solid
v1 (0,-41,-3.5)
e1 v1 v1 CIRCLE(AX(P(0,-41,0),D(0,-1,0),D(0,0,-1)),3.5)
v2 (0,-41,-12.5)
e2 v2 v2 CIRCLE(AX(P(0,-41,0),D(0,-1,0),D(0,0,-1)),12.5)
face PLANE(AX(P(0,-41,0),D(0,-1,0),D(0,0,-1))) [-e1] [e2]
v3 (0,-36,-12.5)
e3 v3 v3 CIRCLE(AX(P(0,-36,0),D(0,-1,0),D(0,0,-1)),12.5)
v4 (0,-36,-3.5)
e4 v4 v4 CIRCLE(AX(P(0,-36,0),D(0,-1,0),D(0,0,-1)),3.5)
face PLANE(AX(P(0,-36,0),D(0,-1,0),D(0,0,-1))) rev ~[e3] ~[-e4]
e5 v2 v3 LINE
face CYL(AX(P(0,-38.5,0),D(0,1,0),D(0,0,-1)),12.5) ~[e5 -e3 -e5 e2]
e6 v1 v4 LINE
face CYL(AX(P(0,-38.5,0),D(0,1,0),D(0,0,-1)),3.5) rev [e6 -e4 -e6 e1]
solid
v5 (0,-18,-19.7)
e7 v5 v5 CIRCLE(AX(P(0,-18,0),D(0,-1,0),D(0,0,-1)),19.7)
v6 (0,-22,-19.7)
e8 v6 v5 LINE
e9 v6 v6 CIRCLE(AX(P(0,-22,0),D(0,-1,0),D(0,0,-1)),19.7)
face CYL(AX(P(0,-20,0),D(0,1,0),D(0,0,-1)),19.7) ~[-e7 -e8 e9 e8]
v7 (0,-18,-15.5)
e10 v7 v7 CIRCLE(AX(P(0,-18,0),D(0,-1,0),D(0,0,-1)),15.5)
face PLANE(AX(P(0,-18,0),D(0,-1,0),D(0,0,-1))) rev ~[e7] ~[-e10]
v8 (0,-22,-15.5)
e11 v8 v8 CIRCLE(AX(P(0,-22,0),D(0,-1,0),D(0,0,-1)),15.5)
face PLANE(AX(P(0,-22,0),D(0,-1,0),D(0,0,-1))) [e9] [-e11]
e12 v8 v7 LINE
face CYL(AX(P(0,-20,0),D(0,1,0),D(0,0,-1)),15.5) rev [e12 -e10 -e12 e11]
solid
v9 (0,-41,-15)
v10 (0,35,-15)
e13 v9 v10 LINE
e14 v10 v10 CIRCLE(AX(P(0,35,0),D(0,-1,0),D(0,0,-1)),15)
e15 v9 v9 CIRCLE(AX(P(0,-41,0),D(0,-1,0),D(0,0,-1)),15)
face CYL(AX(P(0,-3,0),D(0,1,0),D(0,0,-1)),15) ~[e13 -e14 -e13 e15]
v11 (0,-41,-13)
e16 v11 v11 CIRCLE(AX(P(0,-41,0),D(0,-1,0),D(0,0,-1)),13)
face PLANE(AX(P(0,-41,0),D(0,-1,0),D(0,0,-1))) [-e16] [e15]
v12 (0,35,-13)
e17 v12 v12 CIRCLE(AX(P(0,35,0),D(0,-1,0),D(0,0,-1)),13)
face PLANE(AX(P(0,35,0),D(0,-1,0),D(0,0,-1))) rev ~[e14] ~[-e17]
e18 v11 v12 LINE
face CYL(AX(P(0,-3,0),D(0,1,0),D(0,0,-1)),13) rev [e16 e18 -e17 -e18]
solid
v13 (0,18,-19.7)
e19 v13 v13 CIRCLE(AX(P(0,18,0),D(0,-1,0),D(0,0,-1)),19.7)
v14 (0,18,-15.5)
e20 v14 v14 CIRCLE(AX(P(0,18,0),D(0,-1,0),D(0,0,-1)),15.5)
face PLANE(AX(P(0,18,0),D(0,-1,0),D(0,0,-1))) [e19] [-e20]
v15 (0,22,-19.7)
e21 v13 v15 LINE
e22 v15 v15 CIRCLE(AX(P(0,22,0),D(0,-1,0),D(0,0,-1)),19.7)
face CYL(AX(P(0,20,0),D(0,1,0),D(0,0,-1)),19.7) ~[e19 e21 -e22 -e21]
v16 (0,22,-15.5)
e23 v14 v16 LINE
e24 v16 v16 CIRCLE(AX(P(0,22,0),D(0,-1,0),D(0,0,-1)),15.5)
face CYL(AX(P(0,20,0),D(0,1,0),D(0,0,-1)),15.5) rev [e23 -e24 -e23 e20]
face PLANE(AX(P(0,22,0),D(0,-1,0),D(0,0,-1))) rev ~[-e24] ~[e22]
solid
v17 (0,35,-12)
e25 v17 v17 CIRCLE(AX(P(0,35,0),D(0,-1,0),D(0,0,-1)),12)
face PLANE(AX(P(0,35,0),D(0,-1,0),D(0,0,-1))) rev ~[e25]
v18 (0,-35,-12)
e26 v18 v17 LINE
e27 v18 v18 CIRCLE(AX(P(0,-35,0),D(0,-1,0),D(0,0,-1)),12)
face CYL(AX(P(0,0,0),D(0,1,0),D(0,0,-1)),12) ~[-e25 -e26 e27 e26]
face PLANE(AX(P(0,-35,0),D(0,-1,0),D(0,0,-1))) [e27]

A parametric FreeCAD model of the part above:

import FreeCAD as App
import Part
import Sketcher


def add_polygon(sketch, points):
    """Adds a closed chain of lines whose ends are joined by coincident constraints."""
    first, n = sketch.GeometryCount, len(points)
    for a, b in zip(points, points[1:] + points[:1]):
        sketch.addGeometry(Part.LineSegment(App.Vector(*a, 0), App.Vector(*b, 0)), False)
    for i in range(n):
        sketch.addConstraint(Sketcher.Constraint("Coincident", first + i, 2, first + (i + 1) % n, 1))

doc = App.newDocument("Part")
body = doc.addObject("PartDesign::Body", "Body")

# Sketch on YZ plane
sketch1 = body.newObject("Sketcher::SketchObject", "Sketch")
sketch1.AttachmentSupport = (doc.getObject("YZ_Plane"), [""])
sketch1.MapMode = "FlatFace"
add_polygon(sketch1, [(-35, 0), (-35, -12), (35, -12), (35, 0)])  # lines 0-3
sketch1.addConstraint([
    Sketcher.Constraint("Vertical", 0),
    Sketcher.Constraint("Horizontal", 1),
    Sketcher.Constraint("Vertical", 2),
    Sketcher.Constraint("Horizontal", 3),
    Sketcher.Constraint("Symmetric", 2, 2, 3, 2, -1, 1),
    Sketcher.Constraint("DistanceX", 1, 1, 1, 2, 70.0),
    Sketcher.Constraint("DistanceY", 0, 2, 0, 1, 12.0),
])
revolution = body.newObject("PartDesign::Revolution", "Revolution")
revolution.Profile = sketch1
revolution.ReferenceAxis = (sketch1, ["H_Axis"])
revolution.Angle = 360
body2 = doc.addObject("PartDesign::Body", "Body001")

# Sketch on YZ plane
sketch2 = body2.newObject("Sketcher::SketchObject", "Sketch001")
sketch2.AttachmentSupport = (doc.getObject("YZ_Plane001"), [""])
sketch2.MapMode = "FlatFace"
add_polygon(sketch2, [(-41, -13), (-41, -15), (35, -15), (35, -13)])  # lines 0-3
sketch2.addConstraint([
    Sketcher.Constraint("Vertical", 0),
    Sketcher.Constraint("Horizontal", 1),
    Sketcher.Constraint("Vertical", 2),
    Sketcher.Constraint("Horizontal", 3),
    Sketcher.Constraint("DistanceX", 1, 1, 1, 2, 76.0),
    Sketcher.Constraint("DistanceY", 0, 2, 0, 1, 2.0),
    Sketcher.Constraint("DistanceX", 0, 2, -1, 1, 41.0),
    Sketcher.Constraint("DistanceY", 0, 2, -1, 1, 15.0),
])
revolution2 = body2.newObject("PartDesign::Revolution", "Revolution001")
revolution2.Profile = sketch2
revolution2.ReferenceAxis = (sketch2, ["H_Axis"])
revolution2.Angle = 360
body3 = doc.addObject("PartDesign::Body", "Body002")
body3.AllowCompound = True

# Sketch on YZ plane
sketch3 = body3.newObject("Sketcher::SketchObject", "Sketch002")
sketch3.AttachmentSupport = (doc.getObject("YZ_Plane002"), [""])
sketch3.MapMode = "FlatFace"
add_polygon(sketch3, [(-22, -15.5), (-22, -19.7), (-18, -19.7), (-18, -15.5)])  # lines 0-3
add_polygon(sketch3, [(18, -15.5), (18, -19.7), (22, -19.7), (22, -15.5)])  # lines 4-7
sketch3.addConstraint([
    Sketcher.Constraint("Vertical", 0),
    Sketcher.Constraint("Horizontal", 1),
    Sketcher.Constraint("Vertical", 2),
    Sketcher.Constraint("Horizontal", 3),
    Sketcher.Constraint("Vertical", 4),
    Sketcher.Constraint("Horizontal", 5),
    Sketcher.Constraint("Vertical", 6),
    Sketcher.Constraint("Horizontal", 7),
    Sketcher.Constraint("Symmetric", 1, 2, 4, 2, -2),
    Sketcher.Constraint("Symmetric", 3, 2, 6, 2, -2),
    Sketcher.Constraint("DistanceX", 1, 1, 1, 2, 4.0),
    Sketcher.Constraint("DistanceY", 0, 2, 0, 1, 4.2),
    Sketcher.Constraint("DistanceX", 0, 2, -1, 1, 22.0),
    Sketcher.Constraint("DistanceY", 0, 2, -1, 1, 19.7),
])
revolution3 = body3.newObject("PartDesign::Revolution", "Revolution002")
revolution3.Profile = sketch3
revolution3.ReferenceAxis = (sketch3, ["H_Axis"])
revolution3.Angle = 360
body4 = doc.addObject("PartDesign::Body", "Body003")

# Sketch on YZ plane
sketch4 = body4.newObject("Sketcher::SketchObject", "Sketch003")
sketch4.AttachmentSupport = (doc.getObject("YZ_Plane003"), [""])
sketch4.MapMode = "FlatFace"
add_polygon(sketch4, [(-41, -3.5), (-41, -12.5), (-36, -12.5), (-36, -3.5)])  # lines 0-3
sketch4.addConstraint([
    Sketcher.Constraint("Vertical", 0),
    Sketcher.Constraint("Horizontal", 1),
    Sketcher.Constraint("Vertical", 2),
    Sketcher.Constraint("Horizontal", 3),
    Sketcher.Constraint("DistanceX", 1, 1, 1, 2, 5.0),
    Sketcher.Constraint("DistanceY", 0, 2, 0, 1, 9.0),
    Sketcher.Constraint("DistanceX", 0, 2, -1, 1, 41.0),
    Sketcher.Constraint("DistanceY", 0, 2, -1, 1, 12.5),
])
revolution4 = body4.newObject("PartDesign::Revolution", "Revolution003")
revolution4.Profile = sketch4
revolution4.ReferenceAxis = (sketch4, ["H_Axis"])
revolution4.Angle = 360

doc.recompute()
